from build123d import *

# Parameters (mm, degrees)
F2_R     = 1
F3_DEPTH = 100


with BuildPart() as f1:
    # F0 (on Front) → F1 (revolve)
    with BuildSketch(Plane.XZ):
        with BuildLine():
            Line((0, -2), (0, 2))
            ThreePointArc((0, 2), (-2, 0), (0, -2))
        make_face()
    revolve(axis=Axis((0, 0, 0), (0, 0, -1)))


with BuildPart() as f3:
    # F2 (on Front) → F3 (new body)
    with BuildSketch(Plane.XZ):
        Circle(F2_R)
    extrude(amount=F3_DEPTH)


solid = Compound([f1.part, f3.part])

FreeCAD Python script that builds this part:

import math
import FreeCAD as App
import Part
import Sketcher
Q = App.Units.Quantity

doc = App.newDocument("Part")
params = doc.addObject("Spreadsheet::Sheet", "Params")
for row, (alias, value) in enumerate([
    ("sketch1_radius", "2 mm"),
    ("revolution_angle", "360 deg"),
    ("sketch2_diameter", "2 mm"),
    ("pad1_length", "100 mm"),
], start=1):
    params.set(f"A{row}", alias)
    params.set(f"B{row}", "=" + value)
    params.setAlias(f"B{row}", alias)

body = doc.addObject("PartDesign::Body", "Body")

# Sketch on XZ plane
sketch1 = body.newObject("Sketcher::SketchObject", "Sketch")
sketch1.AttachmentSupport = (doc.getObject("XZ_Plane"), [""])
sketch1.MapMode = "FlatFace"
sketch1.addGeometry(Part.LineSegment(App.Vector(0, -2, 0), App.Vector(0, 2, 0)), False)
sketch1.addGeometry(Part.ArcOfCircle(Part.Circle(App.Vector(0, 0, 0), App.Vector(0, 0, 1), 2), math.radians(90), math.radians(270)), False)
sketch1.addConstraint(Sketcher.Constraint("Coincident", 0, 1, 1, 2))
sketch1.addConstraint(Sketcher.Constraint("Coincident", 1, 1, 0, 2))
sketch1.addConstraint(Sketcher.Constraint("Vertical", 0))
sketch1.addConstraint(Sketcher.Constraint("Coincident", 1, 3, -1, 1))
sketch1.addConstraint(Sketcher.Constraint("PointOnObject", 0, 1, -2))
sketch1.addConstraint(Sketcher.Constraint("Radius", 1, Q("2 mm")))
sketch1.setExpression("Constraints[5]", "Params.sketch1_radius")
revolution = body.newObject("PartDesign::Revolution", "Revolution")
revolution.Profile = sketch1
revolution.ReferenceAxis = (sketch1, ["V_Axis"])
revolution.setExpression("Angle", "Params.revolution_angle")
body2 = doc.addObject("PartDesign::Body", "Body001")

# Sketch on XZ plane
sketch2 = body2.newObject("Sketcher::SketchObject", "Sketch001")
sketch2.AttachmentSupport = (doc.getObject("XZ_Plane001"), [""])
sketch2.MapMode = "FlatFace"
sketch2.addGeometry(Part.Circle(App.Vector(0, 0, 0), App.Vector(0, 0, 1), 1), False)
sketch2.addConstraint(Sketcher.Constraint("Coincident", 0, 3, -1, 1))
sketch2.addConstraint(Sketcher.Constraint("Diameter", 0, Q("2 mm")))
sketch2.setExpression("Constraints[1]", "Params.sketch2_diameter")
pad1 = body2.newObject("PartDesign::Pad", "Pad")
pad1.Profile = sketch2
pad1.setExpression("Length", "Params.pad1_length")

doc.recompute()
